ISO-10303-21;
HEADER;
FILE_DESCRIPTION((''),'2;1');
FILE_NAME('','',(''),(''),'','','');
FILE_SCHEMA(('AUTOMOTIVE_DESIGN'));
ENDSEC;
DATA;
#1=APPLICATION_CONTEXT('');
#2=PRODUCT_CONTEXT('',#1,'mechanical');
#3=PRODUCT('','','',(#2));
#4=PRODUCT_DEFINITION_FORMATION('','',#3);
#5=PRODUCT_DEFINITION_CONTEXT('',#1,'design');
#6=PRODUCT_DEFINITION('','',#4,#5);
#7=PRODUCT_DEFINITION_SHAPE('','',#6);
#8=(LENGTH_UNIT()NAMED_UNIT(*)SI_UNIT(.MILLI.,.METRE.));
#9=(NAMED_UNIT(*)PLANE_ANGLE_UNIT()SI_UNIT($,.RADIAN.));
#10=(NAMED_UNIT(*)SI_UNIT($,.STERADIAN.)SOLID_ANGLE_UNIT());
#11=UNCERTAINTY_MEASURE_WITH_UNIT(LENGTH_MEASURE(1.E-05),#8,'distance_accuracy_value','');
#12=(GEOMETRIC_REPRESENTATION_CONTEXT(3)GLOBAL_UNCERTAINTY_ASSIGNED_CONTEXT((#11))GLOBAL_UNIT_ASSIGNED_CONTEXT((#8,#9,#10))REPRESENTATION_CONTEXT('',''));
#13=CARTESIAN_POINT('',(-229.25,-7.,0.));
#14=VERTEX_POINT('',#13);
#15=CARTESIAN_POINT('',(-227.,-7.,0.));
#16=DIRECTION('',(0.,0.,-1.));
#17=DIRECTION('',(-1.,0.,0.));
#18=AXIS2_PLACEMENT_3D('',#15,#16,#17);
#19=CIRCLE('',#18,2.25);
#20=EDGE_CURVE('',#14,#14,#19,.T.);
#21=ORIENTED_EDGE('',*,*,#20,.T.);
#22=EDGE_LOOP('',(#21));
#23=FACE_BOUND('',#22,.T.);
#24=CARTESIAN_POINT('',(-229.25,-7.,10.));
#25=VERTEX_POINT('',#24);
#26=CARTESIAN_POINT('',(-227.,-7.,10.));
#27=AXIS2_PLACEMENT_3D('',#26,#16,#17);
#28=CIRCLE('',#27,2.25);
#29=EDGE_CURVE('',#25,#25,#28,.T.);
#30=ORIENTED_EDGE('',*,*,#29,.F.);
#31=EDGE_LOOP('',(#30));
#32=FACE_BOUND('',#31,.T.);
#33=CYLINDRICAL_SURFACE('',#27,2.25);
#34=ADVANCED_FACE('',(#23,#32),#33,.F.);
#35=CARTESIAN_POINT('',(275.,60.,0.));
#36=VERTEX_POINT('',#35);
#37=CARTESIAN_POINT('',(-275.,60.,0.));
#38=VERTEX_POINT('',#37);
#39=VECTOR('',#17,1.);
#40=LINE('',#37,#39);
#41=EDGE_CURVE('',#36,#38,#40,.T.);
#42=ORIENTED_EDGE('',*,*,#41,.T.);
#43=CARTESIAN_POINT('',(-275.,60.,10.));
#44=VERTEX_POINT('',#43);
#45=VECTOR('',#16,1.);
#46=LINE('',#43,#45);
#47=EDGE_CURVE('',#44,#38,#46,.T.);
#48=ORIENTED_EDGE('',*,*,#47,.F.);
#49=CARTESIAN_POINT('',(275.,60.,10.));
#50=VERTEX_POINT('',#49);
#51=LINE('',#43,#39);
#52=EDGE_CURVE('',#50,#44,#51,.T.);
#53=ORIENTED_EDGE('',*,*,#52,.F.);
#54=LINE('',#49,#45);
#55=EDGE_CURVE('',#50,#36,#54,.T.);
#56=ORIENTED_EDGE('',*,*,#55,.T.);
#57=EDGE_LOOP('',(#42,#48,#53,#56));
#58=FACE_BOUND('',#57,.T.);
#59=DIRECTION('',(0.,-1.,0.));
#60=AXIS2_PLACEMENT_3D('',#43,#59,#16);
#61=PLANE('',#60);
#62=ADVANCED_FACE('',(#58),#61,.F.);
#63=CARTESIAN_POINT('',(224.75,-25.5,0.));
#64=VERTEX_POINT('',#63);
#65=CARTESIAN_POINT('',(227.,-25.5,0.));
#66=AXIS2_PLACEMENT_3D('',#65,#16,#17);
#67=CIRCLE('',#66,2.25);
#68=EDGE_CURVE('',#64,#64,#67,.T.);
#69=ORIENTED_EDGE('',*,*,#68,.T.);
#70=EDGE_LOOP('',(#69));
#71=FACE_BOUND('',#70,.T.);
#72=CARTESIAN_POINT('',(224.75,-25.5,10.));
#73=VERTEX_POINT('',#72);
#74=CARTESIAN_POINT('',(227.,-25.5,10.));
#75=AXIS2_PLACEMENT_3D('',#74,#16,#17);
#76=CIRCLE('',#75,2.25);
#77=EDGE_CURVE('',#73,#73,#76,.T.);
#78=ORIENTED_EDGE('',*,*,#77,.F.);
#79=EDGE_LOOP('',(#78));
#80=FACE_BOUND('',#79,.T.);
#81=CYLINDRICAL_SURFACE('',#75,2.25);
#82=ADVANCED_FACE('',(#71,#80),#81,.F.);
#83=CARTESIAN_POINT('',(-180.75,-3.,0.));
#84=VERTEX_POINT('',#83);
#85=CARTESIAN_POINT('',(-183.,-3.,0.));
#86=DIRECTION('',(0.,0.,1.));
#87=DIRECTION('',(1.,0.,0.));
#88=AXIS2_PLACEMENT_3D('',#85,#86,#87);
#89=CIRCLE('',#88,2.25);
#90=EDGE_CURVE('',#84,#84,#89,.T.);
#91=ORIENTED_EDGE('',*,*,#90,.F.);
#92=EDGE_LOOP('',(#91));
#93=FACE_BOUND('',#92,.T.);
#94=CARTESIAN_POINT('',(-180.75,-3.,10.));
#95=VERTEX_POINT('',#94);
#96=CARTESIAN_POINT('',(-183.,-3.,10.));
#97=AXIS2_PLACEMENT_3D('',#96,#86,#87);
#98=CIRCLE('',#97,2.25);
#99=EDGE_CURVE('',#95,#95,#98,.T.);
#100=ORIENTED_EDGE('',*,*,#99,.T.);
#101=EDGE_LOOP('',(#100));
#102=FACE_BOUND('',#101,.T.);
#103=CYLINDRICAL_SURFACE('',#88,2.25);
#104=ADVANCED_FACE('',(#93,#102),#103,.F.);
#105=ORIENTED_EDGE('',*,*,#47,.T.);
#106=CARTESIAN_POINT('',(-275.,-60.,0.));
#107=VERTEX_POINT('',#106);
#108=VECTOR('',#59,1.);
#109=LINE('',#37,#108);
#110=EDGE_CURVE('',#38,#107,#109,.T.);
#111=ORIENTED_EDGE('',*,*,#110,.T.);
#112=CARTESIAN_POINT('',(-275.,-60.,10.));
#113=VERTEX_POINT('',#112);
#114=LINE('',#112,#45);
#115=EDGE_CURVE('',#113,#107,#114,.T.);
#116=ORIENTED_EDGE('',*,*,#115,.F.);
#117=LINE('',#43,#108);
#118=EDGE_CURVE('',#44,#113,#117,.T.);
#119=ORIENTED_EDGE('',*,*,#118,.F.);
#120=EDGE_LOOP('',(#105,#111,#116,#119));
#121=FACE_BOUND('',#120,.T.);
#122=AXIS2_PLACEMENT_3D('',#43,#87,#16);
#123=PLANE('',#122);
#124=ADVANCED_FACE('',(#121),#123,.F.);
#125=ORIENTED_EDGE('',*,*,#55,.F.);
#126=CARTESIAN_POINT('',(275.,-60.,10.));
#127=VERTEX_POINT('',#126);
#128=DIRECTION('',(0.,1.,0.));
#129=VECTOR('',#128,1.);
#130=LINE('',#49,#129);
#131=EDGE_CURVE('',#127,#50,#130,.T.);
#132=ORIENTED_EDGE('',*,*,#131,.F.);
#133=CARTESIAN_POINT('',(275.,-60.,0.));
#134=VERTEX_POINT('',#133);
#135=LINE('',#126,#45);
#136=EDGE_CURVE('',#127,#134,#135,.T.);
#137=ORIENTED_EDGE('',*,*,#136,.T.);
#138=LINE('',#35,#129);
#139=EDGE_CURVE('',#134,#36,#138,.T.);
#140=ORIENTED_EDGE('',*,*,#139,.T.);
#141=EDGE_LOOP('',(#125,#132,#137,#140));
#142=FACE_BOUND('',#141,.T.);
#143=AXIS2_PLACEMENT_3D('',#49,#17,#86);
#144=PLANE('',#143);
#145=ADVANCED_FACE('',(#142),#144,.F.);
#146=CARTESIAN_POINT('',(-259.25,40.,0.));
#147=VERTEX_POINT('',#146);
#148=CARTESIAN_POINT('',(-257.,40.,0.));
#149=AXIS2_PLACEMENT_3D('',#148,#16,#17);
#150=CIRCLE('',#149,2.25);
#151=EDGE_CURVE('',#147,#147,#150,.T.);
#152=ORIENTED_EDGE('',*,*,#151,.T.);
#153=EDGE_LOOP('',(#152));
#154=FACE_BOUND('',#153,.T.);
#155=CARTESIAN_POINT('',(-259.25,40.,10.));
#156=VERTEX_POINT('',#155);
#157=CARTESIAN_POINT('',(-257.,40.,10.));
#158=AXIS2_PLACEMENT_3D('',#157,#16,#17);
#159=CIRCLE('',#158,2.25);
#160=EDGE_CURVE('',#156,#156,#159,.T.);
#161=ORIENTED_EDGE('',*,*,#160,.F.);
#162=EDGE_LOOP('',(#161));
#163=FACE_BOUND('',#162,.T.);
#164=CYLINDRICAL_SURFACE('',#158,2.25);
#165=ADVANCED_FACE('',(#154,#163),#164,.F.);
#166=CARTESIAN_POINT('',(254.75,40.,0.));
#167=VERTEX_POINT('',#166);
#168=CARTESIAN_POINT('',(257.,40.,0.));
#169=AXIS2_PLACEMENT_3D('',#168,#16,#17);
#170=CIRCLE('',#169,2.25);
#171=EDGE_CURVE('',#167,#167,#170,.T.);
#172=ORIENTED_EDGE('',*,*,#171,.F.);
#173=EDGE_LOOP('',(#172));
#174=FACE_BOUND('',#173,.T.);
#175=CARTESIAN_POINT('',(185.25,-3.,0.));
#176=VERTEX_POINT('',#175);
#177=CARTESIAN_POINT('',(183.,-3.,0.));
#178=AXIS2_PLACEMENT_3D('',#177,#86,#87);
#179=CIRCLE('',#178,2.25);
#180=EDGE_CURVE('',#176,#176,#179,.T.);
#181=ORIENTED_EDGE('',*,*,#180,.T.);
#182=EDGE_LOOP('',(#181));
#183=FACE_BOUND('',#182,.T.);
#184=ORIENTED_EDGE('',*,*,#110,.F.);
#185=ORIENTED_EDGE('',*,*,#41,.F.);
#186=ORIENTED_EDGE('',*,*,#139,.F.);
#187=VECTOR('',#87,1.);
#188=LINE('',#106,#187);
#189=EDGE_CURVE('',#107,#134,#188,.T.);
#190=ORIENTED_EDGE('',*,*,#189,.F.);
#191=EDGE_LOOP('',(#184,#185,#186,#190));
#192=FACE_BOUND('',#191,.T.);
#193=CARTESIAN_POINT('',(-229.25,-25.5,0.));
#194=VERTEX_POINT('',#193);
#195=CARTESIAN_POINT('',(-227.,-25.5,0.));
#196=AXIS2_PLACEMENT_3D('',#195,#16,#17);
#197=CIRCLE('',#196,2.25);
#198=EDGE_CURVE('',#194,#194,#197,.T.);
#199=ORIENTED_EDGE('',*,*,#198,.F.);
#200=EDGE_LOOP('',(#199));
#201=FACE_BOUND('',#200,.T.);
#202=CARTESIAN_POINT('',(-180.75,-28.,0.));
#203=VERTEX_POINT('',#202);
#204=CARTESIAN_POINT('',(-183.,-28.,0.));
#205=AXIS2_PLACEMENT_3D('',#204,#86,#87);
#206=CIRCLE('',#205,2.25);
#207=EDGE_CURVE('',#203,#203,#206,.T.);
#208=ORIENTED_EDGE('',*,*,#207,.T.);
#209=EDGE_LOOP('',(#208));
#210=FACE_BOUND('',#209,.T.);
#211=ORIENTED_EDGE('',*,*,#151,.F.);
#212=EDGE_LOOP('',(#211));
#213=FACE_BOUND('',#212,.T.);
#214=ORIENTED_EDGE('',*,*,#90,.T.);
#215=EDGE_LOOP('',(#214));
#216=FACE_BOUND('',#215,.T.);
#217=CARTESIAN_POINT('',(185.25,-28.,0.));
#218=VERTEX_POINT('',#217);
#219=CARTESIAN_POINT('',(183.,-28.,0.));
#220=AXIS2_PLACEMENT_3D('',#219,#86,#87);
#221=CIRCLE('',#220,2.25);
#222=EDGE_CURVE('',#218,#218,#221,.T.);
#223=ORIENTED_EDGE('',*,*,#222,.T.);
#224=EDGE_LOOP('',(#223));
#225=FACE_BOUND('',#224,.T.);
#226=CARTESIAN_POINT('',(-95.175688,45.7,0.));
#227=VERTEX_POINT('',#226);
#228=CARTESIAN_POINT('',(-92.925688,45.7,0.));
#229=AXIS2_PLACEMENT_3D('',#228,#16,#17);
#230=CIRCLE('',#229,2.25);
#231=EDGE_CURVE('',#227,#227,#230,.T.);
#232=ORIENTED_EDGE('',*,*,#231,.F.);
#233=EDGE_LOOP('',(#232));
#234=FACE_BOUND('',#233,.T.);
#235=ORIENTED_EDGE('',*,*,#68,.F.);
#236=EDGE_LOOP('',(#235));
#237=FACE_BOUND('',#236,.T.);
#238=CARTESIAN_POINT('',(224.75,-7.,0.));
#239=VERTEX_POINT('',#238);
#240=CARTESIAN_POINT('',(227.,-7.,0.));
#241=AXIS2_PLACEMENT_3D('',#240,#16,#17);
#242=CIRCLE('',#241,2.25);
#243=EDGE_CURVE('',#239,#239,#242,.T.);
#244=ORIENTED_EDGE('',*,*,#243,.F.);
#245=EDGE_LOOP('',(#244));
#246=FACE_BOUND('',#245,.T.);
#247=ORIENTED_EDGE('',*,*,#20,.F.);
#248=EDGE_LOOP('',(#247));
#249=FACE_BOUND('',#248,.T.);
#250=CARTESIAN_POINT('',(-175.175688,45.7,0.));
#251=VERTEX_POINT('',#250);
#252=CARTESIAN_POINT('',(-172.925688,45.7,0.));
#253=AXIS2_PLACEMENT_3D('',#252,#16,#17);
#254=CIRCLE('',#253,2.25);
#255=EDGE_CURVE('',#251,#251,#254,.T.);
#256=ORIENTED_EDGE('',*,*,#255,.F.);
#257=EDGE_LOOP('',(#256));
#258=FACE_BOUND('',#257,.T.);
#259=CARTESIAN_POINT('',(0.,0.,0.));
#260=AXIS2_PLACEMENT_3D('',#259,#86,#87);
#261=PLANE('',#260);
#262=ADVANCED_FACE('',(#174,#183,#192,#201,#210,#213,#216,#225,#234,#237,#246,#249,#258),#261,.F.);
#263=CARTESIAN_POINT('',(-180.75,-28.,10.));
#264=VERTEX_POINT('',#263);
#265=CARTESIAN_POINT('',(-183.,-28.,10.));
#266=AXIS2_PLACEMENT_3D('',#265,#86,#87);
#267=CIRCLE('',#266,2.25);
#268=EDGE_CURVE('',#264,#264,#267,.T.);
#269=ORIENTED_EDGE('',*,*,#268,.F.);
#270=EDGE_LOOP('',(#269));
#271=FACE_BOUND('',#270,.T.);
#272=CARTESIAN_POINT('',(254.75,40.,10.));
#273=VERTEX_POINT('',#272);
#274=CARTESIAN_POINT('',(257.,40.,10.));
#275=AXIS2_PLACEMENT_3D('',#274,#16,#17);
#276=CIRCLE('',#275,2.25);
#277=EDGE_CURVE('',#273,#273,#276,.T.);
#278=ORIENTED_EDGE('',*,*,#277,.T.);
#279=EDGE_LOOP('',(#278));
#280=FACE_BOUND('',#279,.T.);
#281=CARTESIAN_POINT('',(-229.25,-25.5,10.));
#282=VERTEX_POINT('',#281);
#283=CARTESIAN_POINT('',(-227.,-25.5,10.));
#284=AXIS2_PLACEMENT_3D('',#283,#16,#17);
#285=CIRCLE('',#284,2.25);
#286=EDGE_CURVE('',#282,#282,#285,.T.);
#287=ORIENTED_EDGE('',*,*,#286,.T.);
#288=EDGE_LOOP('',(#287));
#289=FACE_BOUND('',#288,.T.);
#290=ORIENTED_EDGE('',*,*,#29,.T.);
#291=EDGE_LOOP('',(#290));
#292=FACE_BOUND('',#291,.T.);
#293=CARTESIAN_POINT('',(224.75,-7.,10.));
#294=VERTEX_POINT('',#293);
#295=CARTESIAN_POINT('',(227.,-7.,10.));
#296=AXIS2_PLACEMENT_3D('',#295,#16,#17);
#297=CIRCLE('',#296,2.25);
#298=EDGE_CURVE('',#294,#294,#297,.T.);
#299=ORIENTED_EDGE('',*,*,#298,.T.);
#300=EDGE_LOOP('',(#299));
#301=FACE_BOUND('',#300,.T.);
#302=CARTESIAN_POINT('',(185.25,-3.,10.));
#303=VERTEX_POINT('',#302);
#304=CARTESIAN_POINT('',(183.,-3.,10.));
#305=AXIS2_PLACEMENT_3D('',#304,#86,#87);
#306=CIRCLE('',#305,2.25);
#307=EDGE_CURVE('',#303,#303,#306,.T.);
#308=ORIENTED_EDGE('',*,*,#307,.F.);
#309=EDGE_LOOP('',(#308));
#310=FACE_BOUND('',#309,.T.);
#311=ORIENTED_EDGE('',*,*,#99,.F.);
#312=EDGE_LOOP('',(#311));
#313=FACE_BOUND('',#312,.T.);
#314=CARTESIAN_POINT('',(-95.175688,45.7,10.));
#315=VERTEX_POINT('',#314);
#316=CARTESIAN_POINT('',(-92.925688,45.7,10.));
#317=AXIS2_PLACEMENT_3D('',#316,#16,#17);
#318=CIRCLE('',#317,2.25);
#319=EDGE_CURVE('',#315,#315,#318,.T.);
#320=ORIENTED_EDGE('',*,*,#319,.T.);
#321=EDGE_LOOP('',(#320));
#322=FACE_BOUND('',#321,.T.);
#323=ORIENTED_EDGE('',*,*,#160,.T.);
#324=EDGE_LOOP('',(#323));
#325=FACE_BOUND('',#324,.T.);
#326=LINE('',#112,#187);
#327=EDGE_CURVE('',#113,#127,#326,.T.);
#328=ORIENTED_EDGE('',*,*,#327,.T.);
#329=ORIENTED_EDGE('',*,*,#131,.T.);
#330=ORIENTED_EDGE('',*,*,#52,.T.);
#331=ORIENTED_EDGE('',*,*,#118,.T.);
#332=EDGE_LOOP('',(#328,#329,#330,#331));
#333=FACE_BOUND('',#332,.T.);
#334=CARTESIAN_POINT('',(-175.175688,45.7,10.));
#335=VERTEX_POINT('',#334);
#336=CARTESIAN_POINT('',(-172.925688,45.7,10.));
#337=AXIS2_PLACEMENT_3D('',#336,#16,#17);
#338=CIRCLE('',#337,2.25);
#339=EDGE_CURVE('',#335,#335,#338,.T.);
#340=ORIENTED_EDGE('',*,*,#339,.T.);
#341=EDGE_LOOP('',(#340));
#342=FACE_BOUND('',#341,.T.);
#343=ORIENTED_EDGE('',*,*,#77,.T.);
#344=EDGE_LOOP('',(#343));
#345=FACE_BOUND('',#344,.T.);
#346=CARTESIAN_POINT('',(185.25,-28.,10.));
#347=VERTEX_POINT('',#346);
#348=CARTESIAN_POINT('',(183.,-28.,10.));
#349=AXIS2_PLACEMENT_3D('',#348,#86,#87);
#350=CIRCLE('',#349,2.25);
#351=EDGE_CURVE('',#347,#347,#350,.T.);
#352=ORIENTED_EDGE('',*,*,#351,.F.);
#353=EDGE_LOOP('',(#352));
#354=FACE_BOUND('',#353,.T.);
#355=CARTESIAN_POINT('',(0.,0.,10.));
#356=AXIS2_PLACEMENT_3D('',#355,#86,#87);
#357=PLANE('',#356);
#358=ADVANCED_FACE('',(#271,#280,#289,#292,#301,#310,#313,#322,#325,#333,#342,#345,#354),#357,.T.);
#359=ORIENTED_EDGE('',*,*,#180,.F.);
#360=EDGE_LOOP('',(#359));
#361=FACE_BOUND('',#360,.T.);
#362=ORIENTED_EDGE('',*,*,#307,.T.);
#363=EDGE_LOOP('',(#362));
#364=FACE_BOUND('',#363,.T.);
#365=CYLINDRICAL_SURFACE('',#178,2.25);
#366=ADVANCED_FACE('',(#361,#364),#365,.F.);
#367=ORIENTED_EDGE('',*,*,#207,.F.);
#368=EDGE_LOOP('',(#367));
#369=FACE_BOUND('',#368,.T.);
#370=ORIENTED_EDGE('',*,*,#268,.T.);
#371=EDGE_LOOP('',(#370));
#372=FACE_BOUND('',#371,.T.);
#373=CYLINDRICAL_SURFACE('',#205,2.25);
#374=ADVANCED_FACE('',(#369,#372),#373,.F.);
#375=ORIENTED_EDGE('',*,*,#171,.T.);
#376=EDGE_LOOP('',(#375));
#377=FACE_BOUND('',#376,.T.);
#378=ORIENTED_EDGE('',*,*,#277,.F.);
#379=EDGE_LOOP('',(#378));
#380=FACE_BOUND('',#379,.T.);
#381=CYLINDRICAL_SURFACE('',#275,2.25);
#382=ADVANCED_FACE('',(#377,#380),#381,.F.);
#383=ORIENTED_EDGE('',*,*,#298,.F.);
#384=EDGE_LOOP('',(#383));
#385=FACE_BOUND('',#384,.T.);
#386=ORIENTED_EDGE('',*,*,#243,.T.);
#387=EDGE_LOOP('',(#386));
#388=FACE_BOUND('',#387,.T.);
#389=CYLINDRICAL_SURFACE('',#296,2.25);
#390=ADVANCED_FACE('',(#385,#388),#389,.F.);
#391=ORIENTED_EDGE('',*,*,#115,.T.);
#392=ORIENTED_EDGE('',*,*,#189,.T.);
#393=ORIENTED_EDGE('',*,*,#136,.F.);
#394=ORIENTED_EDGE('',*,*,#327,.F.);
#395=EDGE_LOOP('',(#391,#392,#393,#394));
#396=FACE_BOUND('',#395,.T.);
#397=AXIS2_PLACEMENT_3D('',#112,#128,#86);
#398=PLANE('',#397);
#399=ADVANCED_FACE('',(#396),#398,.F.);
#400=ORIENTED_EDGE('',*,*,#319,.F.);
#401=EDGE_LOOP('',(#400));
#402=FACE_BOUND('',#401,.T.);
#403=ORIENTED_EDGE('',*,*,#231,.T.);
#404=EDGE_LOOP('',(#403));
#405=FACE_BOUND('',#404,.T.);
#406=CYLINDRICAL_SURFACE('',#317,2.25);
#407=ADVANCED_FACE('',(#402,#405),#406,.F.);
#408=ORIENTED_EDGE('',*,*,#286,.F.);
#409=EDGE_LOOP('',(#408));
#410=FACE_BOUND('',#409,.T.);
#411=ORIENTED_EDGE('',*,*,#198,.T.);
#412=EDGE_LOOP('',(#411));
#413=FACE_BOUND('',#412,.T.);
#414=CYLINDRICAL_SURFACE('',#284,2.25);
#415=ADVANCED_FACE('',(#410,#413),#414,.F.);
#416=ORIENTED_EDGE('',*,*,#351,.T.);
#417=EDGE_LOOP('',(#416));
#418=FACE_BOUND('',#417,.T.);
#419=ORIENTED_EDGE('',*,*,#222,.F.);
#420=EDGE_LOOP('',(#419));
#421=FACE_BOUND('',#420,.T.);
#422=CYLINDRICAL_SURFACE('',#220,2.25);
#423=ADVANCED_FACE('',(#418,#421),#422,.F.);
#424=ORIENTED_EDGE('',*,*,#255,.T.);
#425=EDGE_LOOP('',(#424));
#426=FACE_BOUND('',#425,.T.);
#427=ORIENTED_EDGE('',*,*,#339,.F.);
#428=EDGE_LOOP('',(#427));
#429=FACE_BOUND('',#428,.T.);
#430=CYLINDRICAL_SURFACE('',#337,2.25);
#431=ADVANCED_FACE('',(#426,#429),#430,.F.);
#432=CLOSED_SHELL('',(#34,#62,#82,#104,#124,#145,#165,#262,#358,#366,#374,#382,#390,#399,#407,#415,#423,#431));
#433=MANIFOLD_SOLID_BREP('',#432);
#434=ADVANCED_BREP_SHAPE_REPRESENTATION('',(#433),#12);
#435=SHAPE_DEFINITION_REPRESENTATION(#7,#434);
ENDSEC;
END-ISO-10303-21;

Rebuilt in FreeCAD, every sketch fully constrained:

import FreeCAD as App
import Part
import Sketcher

V = App.Vector

doc = App.newDocument("Part")
params = doc.addObject("Spreadsheet::Sheet", "Params")
for row, (alias, value) in enumerate([
    ("sketch1_width", "550 mm"),
    ("sketch1_height", "120 mm"),
    ("pad1_length", "10 mm"),
    ("sketch2_diameter", "4.5 mm"),
    ("pocket1_length", "10 mm"),
    ("sketch3_diameter", "4.5 mm"),
    ("pocket2_length", "10 mm"),
], start=1):
    params.set(f"A{row}", alias)
    params.set(f"B{row}", "=" + value)
    params.setAlias(f"B{row}", alias)

body = doc.addObject("PartDesign::Body", "Body")

# Sketch on XY plane
sketch1 = body.newObject("Sketcher::SketchObject", "Sketch")
sketch1.AttachmentSupport = (doc.getObject("XY_Plane"), [""])
sketch1.MapMode = "FlatFace"
sketch1.addGeometry(Part.LineSegment(V(-275, 60, 0), V(-275, -60, 0)), False)
sketch1.addGeometry(Part.LineSegment(V(-275, -60, 0), V(275, -60, 0)), False)
sketch1.addGeometry(Part.LineSegment(V(275, -60, 0), V(275, 60, 0)), False)
sketch1.addGeometry(Part.LineSegment(V(275, 60, 0), V(-275, 60, 0)), False)
sketch1.addConstraint(Sketcher.Constraint("Coincident", 0, 2, 1, 1))
sketch1.addConstraint(Sketcher.Constraint("Coincident", 1, 2, 2, 1))
sketch1.addConstraint(Sketcher.Constraint("Coincident", 2, 2, 3, 1))
sketch1.addConstraint(Sketcher.Constraint("Coincident", 3, 2, 0, 1))
sketch1.addConstraint(Sketcher.Constraint("Vertical", 0))
sketch1.addConstraint(Sketcher.Constraint("Horizontal", 1))
sketch1.addConstraint(Sketcher.Constraint("Vertical", 2))
sketch1.addConstraint(Sketcher.Constraint("Horizontal", 3))
sketch1.addConstraint(Sketcher.Constraint("Symmetric", 0, 2, 2, 2, -1, 1))
sketch1.addConstraint(Sketcher.Constraint("DistanceX", 1, 1, 1, 2, 550.0))
sketch1.addConstraint(Sketcher.Constraint("DistanceY", 0, 2, 0, 1, 120.0))
sketch1.setExpression("Constraints[9]", "Params.sketch1_width")
sketch1.setExpression("Constraints[10]", "Params.sketch1_height")
pad1 = body.newObject("PartDesign::Pad", "Pad")
pad1.Profile = sketch1
pad1.setExpression("Length", "Params.pad1_length")

# Sketch on XY plane
sketch2 = body.newObject("Sketcher::SketchObject", "Sketch001")
sketch2.AttachmentSupport = (doc.getObject("XY_Plane"), [""])
sketch2.MapMode = "FlatFace"
sketch2.addGeometry(Part.Circle(V(227, -7, 0), V(0, 0, 1), 2.2), False)
sketch2.addGeometry(Part.Circle(V(227, -25.5, 0), V(0, 0, 1), 2.2), False)
sketch2.addGeometry(Part.Circle(V(-227, -7, 0), V(0, 0, 1), 2.2), False)
sketch2.addGeometry(Part.Circle(V(-227, -25.5, 0), V(0, 0, 1), 2.2), False)
sketch2.addGeometry(Part.Circle(V(257, 40, 0), V(0, 0, 1), 2.2), False)
sketch2.addGeometry(Part.Circle(V(-257, 40, 0), V(0, 0, 1), 2.2), False)
sketch2.addGeometry(Part.Circle(V(-172.9, 45.7, 0), V(0, 0, 1), 2.2), False)
sketch2.addGeometry(Part.Circle(V(-92.9, 45.7, 0), V(0, 0, 1), 2.2), False)
sketch2.addConstraint(Sketcher.Constraint("Equal", 0, 1))
sketch2.addConstraint(Sketcher.Constraint("Equal", 1, 2))
sketch2.addConstraint(Sketcher.Constraint("Equal", 2, 3))
sketch2.addConstraint(Sketcher.Constraint("Equal", 3, 4))
sketch2.addConstraint(Sketcher.Constraint("Equal", 4, 5))
sketch2.addConstraint(Sketcher.Constraint("Equal", 5, 6))
sketch2.addConstraint(Sketcher.Constraint("Equal", 6, 7))
sketch2.addConstraint(Sketcher.Constraint("Symmetric", 0, 3, 2, 3, -2))
sketch2.addConstraint(Sketcher.Constraint("Symmetric", 1, 3, 3, 3, -2))
sketch2.addConstraint(Sketcher.Constraint("Symmetric", 4, 3, 5, 3, -2))
sketch2.addConstraint(Sketcher.Constraint("Horizontal", 6, 3, 7, 3))
sketch2.addConstraint(Sketcher.Constraint("Vertical", 0, 3, 1, 3))
sketch2.addConstraint(Sketcher.Constraint("Diameter", 0, 4.5))
sketch2.addConstraint(Sketcher.Constraint("DistanceX", -1, 1, 0, 3, 227.0))
sketch2.addConstraint(Sketcher.Constraint("DistanceY", 0, 3, -1, 1, 7.0))
sketch2.addConstraint(Sketcher.Constraint("DistanceX", -1, 1, 4, 3, 257.0))
sketch2.addConstraint(Sketcher.Constraint("DistanceY", -1, 1, 4, 3, 40.0))
sketch2.addConstraint(Sketcher.Constraint("DistanceX", 6, 3, 7, 3, 80.0))
sketch2.addConstraint(Sketcher.Constraint("DistanceY", 1, 3, -1, 1, 25.5))
sketch2.addConstraint(Sketcher.Constraint("DistanceY", -1, 1, 6, 3, 45.7))
sketch2.addConstraint(Sketcher.Constraint("DistanceX", 6, 3, -1, 1, 172.925688))
sketch2.setExpression("Constraints[12]", "Params.sketch2_diameter")
pocket1 = body.newObject("PartDesign::Pocket", "Pocket")
pocket1.Profile = sketch2
pocket1.setExpression("Length", "Params.pocket1_length")
pocket1.Reversed = True

# Sketch on XY plane
sketch3 = body.newObject("Sketcher::SketchObject", "Sketch002")
sketch3.AttachmentSupport = (doc.getObject("XY_Plane"), [""])
sketch3.MapMode = "FlatFace"
sketch3.AttachmentOffset = App.Placement(V(0, 0, 10), App.Rotation())
sketch3.addGeometry(Part.Circle(V(-183, -3, 0), V(0, 0, 1), 2.2), False)
sketch3.addGeometry(Part.Circle(V(-183, -28, 0), V(0, 0, 1), 2.2), False)
sketch3.addGeometry(Part.Circle(V(183, -28, 0), V(0, 0, 1), 2.2), False)
sketch3.addGeometry(Part.Circle(V(183, -3, 0), V(0, 0, 1), 2.2), False)
sketch3.addConstraint(Sketcher.Constraint("Equal", 0, 1))
sketch3.addConstraint(Sketcher.Constraint("Equal", 1, 2))
sketch3.addConstraint(Sketcher.Constraint("Equal", 2, 3))
sketch3.addConstraint(Sketcher.Constraint("Symmetric", 1, 3, 2, 3, -2))
sketch3.addConstraint(Sketcher.Constraint("Symmetric", 0, 3, 3, 3, -2))
sketch3.addConstraint(Sketcher.Constraint("Vertical", 0, 3, 1, 3))
sketch3.addConstraint(Sketcher.Constraint("Diameter", 0, 4.5))
sketch3.addConstraint(Sketcher.Constraint("DistanceX", 0, 3, -1, 1, 183.0))
sketch3.addConstraint(Sketcher.Constraint("DistanceY", 0, 3, -1, 1, 3.0))
sketch3.addConstraint(Sketcher.Constraint("DistanceY", 1, 3, -1, 1, 28.0))
sketch3.setExpression("Constraints[6]", "Params.sketch3_diameter")
pocket2 = body.newObject("PartDesign::Pocket", "Pocket001")
pocket2.Profile = sketch3
pocket2.setExpression("Length", "Params.pocket2_length")

doc.recompute()
